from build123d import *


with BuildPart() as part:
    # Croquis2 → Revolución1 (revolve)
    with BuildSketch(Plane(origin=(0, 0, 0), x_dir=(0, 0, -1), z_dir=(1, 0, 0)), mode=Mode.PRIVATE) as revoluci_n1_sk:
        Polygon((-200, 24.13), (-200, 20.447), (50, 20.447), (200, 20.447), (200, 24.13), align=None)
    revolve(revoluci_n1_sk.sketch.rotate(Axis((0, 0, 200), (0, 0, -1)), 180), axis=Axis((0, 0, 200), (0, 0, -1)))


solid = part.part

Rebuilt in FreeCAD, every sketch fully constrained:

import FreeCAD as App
import Part
import Sketcher
from FreeCAD import Vector
Q = App.Units.Quantity


def add_polygon(sketch, points):
    """Adds a closed chain of lines whose ends are joined by coincident constraints."""
    first, n = sketch.GeometryCount, len(points)
    for a, b in zip(points, points[1:] + points[:1]):
        sketch.addGeometry(Part.LineSegment(App.Vector(*a, 0), App.Vector(*b, 0)), False)
    for i in range(n):
        sketch.addConstraint(Sketcher.Constraint("Coincident", first + i, 2, first + (i + 1) % n, 1))

doc = App.newDocument("Part")
body = doc.addObject("PartDesign::Body", "Body")

# Sketch on YZ plane
sketch1 = body.newObject("Sketcher::SketchObject", "Sketch")
sketch1.AttachmentSupport = (doc.getObject("YZ_Plane"), [""])
sketch1.MapMode = "FlatFace"
add_polygon(sketch1, [(24.1, 200), (20.4, 200), (20.4, -200), (24.1, -200)])  # lines 0-3
sketch1.addConstraint([
    Sketcher.Constraint("Horizontal", 0),
    Sketcher.Constraint("Vertical", 1),
    Sketcher.Constraint("Horizontal", 2),
    Sketcher.Constraint("Vertical", 3),
    Sketcher.Constraint("DistanceY", 1, 2, 1, 1, Q("400 mm")),
    Sketcher.Constraint("DistanceY", -1, 1, 0, 2, Q("200 mm")),
    Sketcher.Constraint("DistanceX", 0, 2, 0, 1, Q("3.683 mm")),
    Sketcher.Constraint("DistanceX", -1, 1, 2, 2, Q("24.13 mm")),
])
revolution = body.newObject("PartDesign::Revolution", "Revolution")
revolution.Profile = sketch1
revolution.ReferenceAxis = (sketch1, ["V_Axis"])
revolution.Angle = 360

doc.recompute()
